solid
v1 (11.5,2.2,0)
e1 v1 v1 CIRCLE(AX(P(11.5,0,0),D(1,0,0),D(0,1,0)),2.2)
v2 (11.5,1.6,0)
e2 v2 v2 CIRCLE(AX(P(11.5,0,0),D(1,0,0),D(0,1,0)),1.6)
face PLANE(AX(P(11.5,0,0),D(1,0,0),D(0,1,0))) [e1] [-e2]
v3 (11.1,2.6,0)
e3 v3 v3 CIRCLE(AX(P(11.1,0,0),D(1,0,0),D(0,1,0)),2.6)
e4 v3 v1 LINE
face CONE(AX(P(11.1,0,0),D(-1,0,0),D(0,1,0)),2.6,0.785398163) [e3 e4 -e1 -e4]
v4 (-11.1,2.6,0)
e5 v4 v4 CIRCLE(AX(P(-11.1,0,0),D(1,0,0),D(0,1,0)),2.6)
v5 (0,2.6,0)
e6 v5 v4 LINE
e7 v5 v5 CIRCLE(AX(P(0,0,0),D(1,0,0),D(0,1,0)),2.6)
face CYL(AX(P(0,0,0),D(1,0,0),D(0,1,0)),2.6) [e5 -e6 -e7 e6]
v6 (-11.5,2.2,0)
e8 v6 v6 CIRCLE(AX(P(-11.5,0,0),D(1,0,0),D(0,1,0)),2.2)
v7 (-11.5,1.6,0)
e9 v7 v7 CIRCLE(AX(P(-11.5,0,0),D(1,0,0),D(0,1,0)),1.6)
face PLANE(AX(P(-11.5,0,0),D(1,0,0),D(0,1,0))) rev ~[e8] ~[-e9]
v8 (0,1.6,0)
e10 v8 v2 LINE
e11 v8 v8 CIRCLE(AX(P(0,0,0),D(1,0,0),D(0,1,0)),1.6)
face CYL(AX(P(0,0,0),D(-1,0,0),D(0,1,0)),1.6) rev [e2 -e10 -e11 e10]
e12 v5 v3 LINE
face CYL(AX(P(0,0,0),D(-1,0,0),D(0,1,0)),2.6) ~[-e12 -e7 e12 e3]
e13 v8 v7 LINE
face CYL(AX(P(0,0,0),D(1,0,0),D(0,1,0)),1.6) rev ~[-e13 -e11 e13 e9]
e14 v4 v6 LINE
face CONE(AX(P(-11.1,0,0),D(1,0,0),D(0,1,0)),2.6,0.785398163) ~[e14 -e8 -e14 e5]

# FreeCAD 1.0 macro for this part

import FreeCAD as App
import Part
import Sketcher
Q = App.Units.Quantity


def edges_at(feature, points):
    """Names of the edges that pass closest to the given points."""
    edges = feature.Shape.Edges
    near = lambda p: min(range(len(edges)), key=lambda i: edges[i].distToShape(Part.Vertex(*p))[0])
    return sorted({f"Edge{near(p) + 1}" for p in points})

doc = App.newDocument("Part")
body = doc.addObject("PartDesign::Body", "Body")

sketch1 = doc.addObject("Sketcher::SketchObject", "Sketch")
body.addObject(sketch1)
sketch1.AttachmentSupport = (doc.YZ_Plane, [""])
sketch1.MapMode = "FlatFace"
sketch1.addGeometry([
    Part.Circle(App.Vector(0, 0, 0), App.Vector(0, 0, 1), 2.6),
    Part.Circle(App.Vector(0, 0, 0), App.Vector(0, 0, 1), 1.6),
], False)
sketch1.addConstraint([
    Sketcher.Constraint("Coincident", 0, 3, -1, 1),
    Sketcher.Constraint("Coincident", 1, 3, -1, 1),
    Sketcher.Constraint("Diameter", 1, Q("3.2 mm")),
    Sketcher.Constraint("Diameter", 0, Q("5.2 mm")),
])
pad1 = doc.addObject("PartDesign::Pad", "Pad")
body.addObject(pad1)
pad1.Profile = sketch1
pad1.Length = 23
pad1.Midplane = True
doc.recompute()

chamfer = doc.addObject("PartDesign::Chamfer", "Chamfer")
body.addObject(chamfer)
chamfer.Base = (pad1, edges_at(pad1, [(11.5, -2.6, 0), (-11.5, -2.6, 0)]))
chamfer.Size = 0.4

doc.recompute()
